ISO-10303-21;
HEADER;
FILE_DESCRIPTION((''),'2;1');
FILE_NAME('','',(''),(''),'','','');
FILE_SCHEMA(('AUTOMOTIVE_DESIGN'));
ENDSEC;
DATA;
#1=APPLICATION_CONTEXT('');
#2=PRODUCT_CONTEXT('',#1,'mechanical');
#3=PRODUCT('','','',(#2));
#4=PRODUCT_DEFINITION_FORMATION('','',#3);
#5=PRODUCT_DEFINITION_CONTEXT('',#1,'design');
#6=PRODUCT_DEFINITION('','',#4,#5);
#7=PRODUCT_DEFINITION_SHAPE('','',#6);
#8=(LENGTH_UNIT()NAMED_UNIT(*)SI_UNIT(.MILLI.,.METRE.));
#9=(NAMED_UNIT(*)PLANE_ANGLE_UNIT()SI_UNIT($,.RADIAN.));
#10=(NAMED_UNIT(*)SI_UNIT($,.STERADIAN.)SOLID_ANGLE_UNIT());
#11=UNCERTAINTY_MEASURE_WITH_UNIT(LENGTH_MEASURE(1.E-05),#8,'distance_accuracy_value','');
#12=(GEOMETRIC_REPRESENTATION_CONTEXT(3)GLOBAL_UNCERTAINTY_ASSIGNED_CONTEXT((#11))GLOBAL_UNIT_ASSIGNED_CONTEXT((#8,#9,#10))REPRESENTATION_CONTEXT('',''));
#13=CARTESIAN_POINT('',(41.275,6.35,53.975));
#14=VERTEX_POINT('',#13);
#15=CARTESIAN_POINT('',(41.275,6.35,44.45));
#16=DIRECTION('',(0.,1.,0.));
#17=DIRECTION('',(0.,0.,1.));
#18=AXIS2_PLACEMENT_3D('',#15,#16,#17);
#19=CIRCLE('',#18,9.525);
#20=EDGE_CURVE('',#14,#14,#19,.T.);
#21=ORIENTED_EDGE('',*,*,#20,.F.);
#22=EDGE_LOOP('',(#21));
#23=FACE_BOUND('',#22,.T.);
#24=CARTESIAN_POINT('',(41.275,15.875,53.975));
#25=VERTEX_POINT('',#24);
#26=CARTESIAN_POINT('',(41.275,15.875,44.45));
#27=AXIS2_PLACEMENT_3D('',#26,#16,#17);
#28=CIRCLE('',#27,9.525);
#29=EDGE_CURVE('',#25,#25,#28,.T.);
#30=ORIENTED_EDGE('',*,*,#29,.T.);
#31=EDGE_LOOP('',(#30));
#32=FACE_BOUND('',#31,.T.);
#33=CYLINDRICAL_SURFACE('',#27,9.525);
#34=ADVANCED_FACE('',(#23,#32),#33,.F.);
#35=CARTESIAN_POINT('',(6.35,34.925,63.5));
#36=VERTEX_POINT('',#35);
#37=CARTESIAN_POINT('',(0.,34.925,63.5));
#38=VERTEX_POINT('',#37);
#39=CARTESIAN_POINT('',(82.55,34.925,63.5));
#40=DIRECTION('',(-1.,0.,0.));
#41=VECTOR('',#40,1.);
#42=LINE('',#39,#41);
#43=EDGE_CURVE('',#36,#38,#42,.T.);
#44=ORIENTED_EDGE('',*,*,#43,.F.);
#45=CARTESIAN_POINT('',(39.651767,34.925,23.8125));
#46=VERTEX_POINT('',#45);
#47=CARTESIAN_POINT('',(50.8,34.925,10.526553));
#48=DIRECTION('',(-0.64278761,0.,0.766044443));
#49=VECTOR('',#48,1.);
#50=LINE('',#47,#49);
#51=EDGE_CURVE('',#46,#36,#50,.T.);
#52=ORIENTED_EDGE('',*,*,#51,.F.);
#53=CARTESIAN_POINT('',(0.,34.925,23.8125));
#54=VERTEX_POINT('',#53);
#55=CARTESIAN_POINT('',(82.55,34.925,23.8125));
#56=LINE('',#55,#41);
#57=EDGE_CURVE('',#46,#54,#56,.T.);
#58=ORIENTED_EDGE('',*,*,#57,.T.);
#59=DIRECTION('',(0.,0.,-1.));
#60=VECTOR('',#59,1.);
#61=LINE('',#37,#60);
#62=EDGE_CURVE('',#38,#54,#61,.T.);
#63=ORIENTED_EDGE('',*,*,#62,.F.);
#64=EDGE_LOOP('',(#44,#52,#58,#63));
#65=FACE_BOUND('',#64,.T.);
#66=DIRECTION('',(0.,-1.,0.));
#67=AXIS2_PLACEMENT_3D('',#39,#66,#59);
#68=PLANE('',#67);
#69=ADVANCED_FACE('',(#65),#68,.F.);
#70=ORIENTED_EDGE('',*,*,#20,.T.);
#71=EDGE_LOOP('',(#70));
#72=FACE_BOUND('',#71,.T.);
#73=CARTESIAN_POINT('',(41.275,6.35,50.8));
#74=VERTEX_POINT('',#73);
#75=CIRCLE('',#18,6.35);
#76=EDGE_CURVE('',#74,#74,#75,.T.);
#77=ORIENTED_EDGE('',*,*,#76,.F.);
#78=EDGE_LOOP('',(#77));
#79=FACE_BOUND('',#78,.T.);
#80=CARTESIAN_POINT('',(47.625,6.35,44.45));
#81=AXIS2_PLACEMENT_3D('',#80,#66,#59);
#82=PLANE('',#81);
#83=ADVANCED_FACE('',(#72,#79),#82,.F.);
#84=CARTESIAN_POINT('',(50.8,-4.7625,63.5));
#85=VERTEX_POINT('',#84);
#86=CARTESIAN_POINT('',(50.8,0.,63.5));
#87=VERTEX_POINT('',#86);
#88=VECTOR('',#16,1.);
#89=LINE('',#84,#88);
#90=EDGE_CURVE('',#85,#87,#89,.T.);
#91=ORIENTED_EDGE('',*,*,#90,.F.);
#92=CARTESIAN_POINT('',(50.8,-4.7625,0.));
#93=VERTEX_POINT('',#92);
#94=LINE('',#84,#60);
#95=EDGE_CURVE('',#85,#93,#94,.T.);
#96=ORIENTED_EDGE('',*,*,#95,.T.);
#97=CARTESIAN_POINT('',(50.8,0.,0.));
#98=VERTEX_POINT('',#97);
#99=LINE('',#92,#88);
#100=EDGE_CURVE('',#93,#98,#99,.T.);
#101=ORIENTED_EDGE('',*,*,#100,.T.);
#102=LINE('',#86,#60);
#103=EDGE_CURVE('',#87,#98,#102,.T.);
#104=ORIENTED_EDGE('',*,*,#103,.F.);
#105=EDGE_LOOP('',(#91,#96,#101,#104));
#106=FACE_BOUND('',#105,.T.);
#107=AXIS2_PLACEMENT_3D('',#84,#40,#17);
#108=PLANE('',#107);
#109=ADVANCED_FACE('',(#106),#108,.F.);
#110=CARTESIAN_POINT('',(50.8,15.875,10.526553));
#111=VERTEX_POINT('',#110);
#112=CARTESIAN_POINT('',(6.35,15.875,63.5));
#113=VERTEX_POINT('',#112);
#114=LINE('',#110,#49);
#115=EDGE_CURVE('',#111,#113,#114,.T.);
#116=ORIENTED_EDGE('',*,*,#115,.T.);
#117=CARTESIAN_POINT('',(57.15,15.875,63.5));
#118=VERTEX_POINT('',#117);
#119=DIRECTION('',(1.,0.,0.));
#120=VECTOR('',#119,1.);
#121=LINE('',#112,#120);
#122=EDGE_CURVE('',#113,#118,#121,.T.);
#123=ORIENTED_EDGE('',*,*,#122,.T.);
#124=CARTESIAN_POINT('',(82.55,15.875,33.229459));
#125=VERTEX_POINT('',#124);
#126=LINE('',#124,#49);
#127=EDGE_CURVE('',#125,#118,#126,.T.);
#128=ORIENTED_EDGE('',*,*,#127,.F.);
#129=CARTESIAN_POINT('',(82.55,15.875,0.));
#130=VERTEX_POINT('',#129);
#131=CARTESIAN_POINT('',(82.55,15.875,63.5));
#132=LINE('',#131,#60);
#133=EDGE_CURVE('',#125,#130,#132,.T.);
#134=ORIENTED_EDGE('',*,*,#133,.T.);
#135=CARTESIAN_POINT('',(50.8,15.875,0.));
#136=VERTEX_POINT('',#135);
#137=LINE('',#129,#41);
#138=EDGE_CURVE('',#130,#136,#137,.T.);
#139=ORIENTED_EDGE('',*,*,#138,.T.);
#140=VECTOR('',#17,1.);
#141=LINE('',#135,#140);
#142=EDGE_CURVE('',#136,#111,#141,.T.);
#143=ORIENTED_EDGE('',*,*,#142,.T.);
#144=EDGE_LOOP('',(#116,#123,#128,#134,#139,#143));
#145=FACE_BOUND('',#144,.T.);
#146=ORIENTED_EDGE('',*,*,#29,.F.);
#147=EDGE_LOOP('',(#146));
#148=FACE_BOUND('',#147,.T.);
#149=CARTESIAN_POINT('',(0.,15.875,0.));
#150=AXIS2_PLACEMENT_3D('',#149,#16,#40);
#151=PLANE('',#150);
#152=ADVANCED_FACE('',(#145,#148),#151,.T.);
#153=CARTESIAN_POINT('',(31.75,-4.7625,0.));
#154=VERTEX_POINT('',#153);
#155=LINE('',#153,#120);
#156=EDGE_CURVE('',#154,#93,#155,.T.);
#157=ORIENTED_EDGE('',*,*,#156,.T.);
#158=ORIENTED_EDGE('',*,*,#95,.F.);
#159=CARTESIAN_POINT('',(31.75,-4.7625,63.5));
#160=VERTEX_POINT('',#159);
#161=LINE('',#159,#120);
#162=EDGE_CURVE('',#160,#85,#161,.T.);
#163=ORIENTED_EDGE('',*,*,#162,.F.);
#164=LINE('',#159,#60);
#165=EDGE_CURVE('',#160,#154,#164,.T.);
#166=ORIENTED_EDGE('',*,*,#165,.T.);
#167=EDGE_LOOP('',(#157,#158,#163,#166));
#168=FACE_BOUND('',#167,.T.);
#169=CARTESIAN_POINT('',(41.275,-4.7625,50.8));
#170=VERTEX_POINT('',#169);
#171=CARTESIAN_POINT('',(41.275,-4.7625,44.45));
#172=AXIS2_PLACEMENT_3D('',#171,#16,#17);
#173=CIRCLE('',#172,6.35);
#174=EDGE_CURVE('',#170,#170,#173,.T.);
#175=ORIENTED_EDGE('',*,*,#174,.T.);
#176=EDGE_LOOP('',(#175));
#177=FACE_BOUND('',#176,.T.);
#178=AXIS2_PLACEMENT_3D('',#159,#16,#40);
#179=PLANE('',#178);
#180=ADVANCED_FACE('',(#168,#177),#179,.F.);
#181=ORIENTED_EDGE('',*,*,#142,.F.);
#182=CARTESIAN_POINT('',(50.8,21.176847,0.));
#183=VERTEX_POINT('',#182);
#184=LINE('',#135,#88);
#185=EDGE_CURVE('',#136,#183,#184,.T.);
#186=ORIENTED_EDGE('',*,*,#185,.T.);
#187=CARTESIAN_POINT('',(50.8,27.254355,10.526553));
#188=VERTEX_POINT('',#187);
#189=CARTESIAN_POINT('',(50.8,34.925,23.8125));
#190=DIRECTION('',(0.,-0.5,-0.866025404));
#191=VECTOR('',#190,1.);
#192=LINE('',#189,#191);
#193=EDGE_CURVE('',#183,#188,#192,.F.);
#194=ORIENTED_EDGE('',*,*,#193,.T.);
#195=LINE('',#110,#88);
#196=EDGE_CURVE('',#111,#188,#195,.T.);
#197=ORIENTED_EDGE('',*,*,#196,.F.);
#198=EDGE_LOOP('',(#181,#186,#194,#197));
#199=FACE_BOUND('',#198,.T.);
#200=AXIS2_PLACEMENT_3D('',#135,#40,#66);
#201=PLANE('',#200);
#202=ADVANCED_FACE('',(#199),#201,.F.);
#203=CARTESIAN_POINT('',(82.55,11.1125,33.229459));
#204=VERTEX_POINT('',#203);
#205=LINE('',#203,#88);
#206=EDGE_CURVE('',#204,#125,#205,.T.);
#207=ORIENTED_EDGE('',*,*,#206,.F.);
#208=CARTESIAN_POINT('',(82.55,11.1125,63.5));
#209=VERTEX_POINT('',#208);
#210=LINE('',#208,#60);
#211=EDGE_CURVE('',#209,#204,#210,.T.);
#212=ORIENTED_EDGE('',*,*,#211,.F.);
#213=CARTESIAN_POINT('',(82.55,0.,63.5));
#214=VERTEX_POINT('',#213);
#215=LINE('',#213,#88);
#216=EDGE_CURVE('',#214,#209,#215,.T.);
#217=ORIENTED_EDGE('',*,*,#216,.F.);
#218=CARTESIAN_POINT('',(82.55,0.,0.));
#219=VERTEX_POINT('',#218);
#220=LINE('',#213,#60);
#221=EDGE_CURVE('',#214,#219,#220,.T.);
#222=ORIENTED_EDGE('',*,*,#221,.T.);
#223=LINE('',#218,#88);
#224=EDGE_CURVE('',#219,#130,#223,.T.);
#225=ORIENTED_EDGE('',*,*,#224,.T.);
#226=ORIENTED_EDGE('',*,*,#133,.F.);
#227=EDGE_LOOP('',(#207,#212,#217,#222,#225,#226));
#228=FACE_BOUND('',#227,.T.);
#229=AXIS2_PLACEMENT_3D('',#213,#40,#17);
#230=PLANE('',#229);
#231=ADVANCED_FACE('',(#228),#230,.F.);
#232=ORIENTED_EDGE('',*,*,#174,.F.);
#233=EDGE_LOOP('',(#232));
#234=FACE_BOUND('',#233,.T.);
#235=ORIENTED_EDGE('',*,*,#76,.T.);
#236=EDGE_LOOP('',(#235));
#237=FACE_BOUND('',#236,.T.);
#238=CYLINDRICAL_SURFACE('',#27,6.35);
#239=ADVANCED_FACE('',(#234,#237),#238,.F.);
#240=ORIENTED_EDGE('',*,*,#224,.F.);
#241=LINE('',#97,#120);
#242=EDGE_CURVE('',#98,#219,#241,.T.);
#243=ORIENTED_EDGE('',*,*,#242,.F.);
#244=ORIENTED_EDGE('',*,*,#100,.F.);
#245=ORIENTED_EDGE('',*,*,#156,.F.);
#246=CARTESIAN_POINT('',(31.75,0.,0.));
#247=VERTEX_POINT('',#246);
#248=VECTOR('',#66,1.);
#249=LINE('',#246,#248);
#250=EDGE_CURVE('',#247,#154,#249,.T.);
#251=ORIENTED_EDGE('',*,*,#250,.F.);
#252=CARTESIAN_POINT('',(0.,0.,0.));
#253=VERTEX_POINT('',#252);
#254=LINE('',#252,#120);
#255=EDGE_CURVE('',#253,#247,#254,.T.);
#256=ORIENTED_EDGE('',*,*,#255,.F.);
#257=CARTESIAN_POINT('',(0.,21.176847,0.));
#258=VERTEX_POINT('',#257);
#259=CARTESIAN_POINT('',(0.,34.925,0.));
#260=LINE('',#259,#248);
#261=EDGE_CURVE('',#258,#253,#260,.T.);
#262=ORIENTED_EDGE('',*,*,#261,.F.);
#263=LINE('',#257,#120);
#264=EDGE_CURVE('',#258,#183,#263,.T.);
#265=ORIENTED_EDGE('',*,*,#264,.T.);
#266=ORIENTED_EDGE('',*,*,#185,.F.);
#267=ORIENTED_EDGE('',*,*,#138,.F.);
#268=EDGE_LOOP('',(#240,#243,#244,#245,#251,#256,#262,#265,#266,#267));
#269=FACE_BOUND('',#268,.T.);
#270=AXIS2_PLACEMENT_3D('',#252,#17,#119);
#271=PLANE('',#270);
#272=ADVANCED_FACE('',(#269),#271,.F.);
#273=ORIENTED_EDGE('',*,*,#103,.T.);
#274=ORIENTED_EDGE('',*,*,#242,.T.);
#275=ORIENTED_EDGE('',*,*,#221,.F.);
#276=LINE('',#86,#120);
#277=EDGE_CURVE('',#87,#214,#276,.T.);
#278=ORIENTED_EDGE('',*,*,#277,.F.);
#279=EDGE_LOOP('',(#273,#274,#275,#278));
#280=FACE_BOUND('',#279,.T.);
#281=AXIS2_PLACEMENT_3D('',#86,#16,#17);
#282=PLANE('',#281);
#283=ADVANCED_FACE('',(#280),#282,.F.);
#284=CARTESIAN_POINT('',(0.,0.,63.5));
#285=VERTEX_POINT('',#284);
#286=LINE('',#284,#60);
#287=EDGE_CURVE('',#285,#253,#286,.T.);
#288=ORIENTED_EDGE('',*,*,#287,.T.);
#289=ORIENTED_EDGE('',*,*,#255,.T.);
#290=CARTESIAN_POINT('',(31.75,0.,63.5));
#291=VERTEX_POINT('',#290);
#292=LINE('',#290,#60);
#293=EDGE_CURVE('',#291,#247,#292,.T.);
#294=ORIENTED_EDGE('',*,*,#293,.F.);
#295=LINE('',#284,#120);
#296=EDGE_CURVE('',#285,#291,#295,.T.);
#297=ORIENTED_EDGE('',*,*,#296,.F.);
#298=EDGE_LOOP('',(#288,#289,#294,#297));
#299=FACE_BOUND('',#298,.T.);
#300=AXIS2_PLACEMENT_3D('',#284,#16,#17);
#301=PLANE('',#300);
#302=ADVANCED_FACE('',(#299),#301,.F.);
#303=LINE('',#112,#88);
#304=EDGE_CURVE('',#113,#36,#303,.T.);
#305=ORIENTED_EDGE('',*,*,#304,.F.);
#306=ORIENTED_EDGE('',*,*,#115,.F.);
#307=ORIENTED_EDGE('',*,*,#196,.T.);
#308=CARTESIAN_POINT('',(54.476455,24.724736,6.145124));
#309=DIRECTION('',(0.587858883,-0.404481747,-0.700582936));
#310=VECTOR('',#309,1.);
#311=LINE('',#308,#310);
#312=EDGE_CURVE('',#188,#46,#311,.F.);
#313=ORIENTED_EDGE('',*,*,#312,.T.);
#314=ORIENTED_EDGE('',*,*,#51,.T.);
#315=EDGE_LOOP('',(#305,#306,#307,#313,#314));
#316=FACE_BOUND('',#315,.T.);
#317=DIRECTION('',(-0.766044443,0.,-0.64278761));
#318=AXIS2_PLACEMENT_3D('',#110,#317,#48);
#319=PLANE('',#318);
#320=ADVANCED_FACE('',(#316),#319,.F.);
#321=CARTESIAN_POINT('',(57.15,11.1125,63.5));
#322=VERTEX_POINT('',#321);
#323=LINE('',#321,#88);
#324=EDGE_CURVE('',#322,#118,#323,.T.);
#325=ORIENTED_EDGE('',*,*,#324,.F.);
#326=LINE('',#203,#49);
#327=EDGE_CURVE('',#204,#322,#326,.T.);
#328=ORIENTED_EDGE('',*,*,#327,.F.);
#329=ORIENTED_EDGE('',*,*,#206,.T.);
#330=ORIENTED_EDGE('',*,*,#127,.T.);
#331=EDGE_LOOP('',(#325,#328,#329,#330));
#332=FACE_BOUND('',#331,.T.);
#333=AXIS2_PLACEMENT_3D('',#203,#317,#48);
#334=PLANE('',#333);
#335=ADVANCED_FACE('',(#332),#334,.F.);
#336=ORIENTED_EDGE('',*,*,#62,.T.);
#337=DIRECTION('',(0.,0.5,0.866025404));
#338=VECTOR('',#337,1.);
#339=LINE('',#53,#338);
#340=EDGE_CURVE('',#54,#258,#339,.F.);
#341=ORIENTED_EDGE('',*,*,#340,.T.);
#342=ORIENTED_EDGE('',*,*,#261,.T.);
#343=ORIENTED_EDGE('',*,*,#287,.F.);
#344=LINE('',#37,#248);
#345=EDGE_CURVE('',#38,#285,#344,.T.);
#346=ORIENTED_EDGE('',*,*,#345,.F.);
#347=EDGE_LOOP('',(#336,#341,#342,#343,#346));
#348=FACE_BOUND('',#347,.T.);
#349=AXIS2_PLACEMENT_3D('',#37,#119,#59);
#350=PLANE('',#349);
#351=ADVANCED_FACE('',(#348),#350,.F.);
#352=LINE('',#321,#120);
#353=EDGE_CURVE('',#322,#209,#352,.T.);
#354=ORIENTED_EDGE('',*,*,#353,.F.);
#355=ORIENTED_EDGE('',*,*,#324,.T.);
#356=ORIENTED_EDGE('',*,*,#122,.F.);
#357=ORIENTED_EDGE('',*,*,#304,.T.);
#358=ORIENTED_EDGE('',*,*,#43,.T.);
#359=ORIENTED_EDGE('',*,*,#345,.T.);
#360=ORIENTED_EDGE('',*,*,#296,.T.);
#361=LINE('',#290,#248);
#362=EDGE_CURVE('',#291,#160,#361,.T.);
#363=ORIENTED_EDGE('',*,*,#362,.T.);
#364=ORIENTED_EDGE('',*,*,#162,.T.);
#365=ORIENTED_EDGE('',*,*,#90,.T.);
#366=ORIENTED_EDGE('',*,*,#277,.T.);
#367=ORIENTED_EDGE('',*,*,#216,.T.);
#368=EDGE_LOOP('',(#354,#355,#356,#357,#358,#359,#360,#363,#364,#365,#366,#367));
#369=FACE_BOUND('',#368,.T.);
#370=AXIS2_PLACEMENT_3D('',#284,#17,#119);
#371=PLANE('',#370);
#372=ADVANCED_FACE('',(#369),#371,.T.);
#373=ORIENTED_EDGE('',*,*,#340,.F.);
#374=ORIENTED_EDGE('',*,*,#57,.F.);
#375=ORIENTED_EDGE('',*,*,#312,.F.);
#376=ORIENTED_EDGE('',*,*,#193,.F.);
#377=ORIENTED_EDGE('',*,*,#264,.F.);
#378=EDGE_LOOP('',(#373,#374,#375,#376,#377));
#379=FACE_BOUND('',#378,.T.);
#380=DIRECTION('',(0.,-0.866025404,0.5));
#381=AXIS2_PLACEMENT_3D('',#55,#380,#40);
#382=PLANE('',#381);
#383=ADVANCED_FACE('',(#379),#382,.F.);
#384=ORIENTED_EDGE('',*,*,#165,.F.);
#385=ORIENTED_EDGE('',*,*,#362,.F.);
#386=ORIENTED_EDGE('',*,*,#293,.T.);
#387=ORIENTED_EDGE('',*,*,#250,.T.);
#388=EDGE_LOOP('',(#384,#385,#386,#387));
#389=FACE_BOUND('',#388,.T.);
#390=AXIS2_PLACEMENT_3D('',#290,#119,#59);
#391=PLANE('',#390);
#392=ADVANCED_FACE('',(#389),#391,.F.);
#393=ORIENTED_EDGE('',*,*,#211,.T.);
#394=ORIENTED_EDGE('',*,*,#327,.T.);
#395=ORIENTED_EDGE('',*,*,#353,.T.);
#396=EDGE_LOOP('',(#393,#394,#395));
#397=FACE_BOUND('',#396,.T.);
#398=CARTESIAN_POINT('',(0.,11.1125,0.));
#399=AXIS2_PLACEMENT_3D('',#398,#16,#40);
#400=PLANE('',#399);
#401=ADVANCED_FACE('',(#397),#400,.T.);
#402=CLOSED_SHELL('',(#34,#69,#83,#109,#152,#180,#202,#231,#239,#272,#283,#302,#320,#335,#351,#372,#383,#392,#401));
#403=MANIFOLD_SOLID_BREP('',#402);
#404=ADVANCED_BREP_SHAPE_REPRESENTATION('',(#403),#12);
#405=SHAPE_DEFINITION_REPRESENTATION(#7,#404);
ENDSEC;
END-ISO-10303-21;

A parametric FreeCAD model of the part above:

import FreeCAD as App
import Part
import Sketcher
Q = App.Units.Quantity


def edges_at(feature, points):
    """Names of the edges that pass closest to the given points."""
    edges = feature.Shape.Edges
    near = lambda p: min(range(len(edges)), key=lambda i: edges[i].distToShape(Part.Vertex(*p))[0])
    return sorted({f"Edge{near(p) + 1}" for p in points})

doc = App.newDocument("Part")
body = doc.addObject("PartDesign::Body", "Body")

# Sketch on XY plane
sketch1 = doc.addObject("Sketcher::SketchObject", "Sketch")
body.addObject(sketch1)
sketch1.AttachmentSupport = (doc.XY_Plane, [""])
sketch1.MapMode = "FlatFace"
sketch1.addGeometry([
    Part.LineSegment(App.Vector(0, 0, 0), App.Vector(31.8, 0, 0)),  # 0
    Part.LineSegment(App.Vector(31.8, 0, 0), App.Vector(31.8, -4.8, 0)),  # 1
    Part.LineSegment(App.Vector(31.8, -4.8, 0), App.Vector(50.8, -4.8, 0)),  # 2
    Part.LineSegment(App.Vector(50.8, -4.8, 0), App.Vector(50.8, 0, 0)),  # 3
    Part.LineSegment(App.Vector(50.8, 0, 0), App.Vector(82.5, 0, 0)),  # 4
    Part.LineSegment(App.Vector(82.5, 0, 0), App.Vector(82.5, 34.9, 0)),  # 5
    Part.LineSegment(App.Vector(82.5, 34.9, 0), App.Vector(0, 34.9, 0)),  # 6
    Part.LineSegment(App.Vector(0, 34.9, 0), App.Vector(0, 0, 0)),  # 7
], False)
sketch1.addConstraint([
    Sketcher.Constraint("Coincident", 0, 2, 1, 1),
    Sketcher.Constraint("Coincident", 1, 2, 2, 1),
    Sketcher.Constraint("Coincident", 2, 2, 3, 1),
    Sketcher.Constraint("Coincident", 3, 2, 4, 1),
    Sketcher.Constraint("Coincident", 4, 2, 5, 1),
    Sketcher.Constraint("Coincident", 5, 2, 6, 1),
    Sketcher.Constraint("Coincident", 6, 2, 7, 1),
    Sketcher.Constraint("Coincident", 7, 2, 0, 1),
    Sketcher.Constraint("Horizontal", 0),
    Sketcher.Constraint("Vertical", 1),
    Sketcher.Constraint("Horizontal", 2),
    Sketcher.Constraint("Vertical", 3),
    Sketcher.Constraint("Horizontal", 4),
    Sketcher.Constraint("Vertical", 5),
    Sketcher.Constraint("Horizontal", 6),
    Sketcher.Constraint("Vertical", 7),
    Sketcher.Constraint("Coincident", 7, 2, -1, 1),
    Sketcher.Constraint("PointOnObject", 3, 2, -1),
    Sketcher.Constraint("Equal", 0, 4),
    Sketcher.Constraint("DistanceX", -1, 1, 2, 2, Q("2 in")),
    Sketcher.Constraint("DistanceX", 0, 1, 0, 2, Q("1.25 in")),
    Sketcher.Constraint("DistanceY", 1, 2, 1, 1, Q("0.1875 in")),
    Sketcher.Constraint("DistanceY", 5, 1, 5, 2, Q("1.375 in")),
])
pad1 = doc.addObject("PartDesign::Pad", "Pad")
body.addObject(pad1)
pad1.Profile = sketch1
pad1.Length = Q("2.5 in")
doc.recompute()

chamfer = doc.addObject("PartDesign::Chamfer", "Chamfer")
body.addObject(chamfer)
chamfer.Base = (pad1, edges_at(pad1, [(41.275, 34.925, 0)]))
chamfer.ChamferType = "Two distances"
chamfer.Size = Q("0.9375 in")
chamfer.Size2 = 13.748153

# Sketch on XZ plane
sketch2 = doc.addObject("Sketcher::SketchObject", "Sketch001")
body.addObject(sketch2)
sketch2.AttachmentSupport = (doc.XZ_Plane, [""])
sketch2.MapMode = "FlatFace"
sketch2.AttachmentOffset = App.Placement(App.Vector(0, 0, -1.375 * 25.4), App.Rotation())
sketch2.addGeometry([
    Part.LineSegment(App.Vector(51, 0, 0), App.Vector(51, 11, 0)),  # 0
    Part.LineSegment(App.Vector(51, 11, 0), App.Vector(6, 64, 0)),  # 1
    Part.LineSegment(App.Vector(6, 64, 0), App.Vector(83, 64, 0)),  # 2
    Part.LineSegment(App.Vector(83, 64, 0), App.Vector(83, 0, 0)),  # 3
    Part.LineSegment(App.Vector(83, 0, 0), App.Vector(51, 0, 0)),  # 4
], False)
sketch2.addConstraint([
    Sketcher.Constraint("Coincident", 0, 2, 1, 1),
    Sketcher.Constraint("Coincident", 1, 2, 2, 1),
    Sketcher.Constraint("Coincident", 2, 2, 3, 1),
    Sketcher.Constraint("Coincident", 3, 2, 4, 1),
    Sketcher.Constraint("Coincident", 4, 2, 0, 1),
    Sketcher.Constraint("Vertical", 0),
    Sketcher.Constraint("Horizontal", 2),
    Sketcher.Constraint("Vertical", 3),
    Sketcher.Constraint("Horizontal", 4),
    Sketcher.Constraint("PointOnObject", 3, 2, -1),
    Sketcher.Constraint("DistanceX", 2, 1, 2, 2, Q("3 in")),
    Sketcher.Constraint("DistanceY", 3, 2, 3, 1, Q("2.5 in")),
    Sketcher.Constraint("DistanceX", -1, 1, 0, 2, Q("2 in")),
    Sketcher.Constraint("Angle", 1, Q("130 deg")),
    Sketcher.Constraint("DistanceX", 4, 2, 4, 1, Q("1.25 in")),
])
pocket1 = doc.addObject("PartDesign::Pocket", "Pocket")
body.addObject(pocket1)
pocket1.Profile = sketch2
pocket1.Length = Q("0.75 in")
pocket1.Reversed = True

# Sketch on XZ plane
sketch3 = doc.addObject("Sketcher::SketchObject", "Sketch002")
body.addObject(sketch3)
sketch3.AttachmentSupport = (doc.XZ_Plane, [""])
sketch3.MapMode = "FlatFace"
sketch3.AttachmentOffset = App.Placement(App.Vector(0, 0, -0.625 * 25.4), App.Rotation())
sketch3.addGeometry(Part.Circle(App.Vector(41, 44, 0), App.Vector(0, 0, 1), 6), False)
sketch3.addConstraint([
    Sketcher.Constraint("Diameter", 0, Q("0.5 in")),
    Sketcher.Constraint("DistanceY", -1, 1, 0, 3, Q("1.75 in")),
    Sketcher.Constraint("DistanceX", -1, 1, 0, 3, Q("1.625 in")),
])
doc.recompute()
hole = doc.addObject("PartDesign::Hole", "Hole")
body.addObject(hole)
hole.Profile = sketch3
hole.ThreadType = "None"
hole.Diameter = Q("0.5 in")
hole.DepthType = "ThroughAll"
hole.HoleCutType = "Counterbore"
hole.HoleCutDiameter = Q("0.75 in")
hole.HoleCutDepth = Q("0.375 in")
hole.Reversed = True

# Sketch on XZ plane
sketch4 = doc.addObject("Sketcher::SketchObject", "Sketch003")
body.addObject(sketch4)
sketch4.AttachmentSupport = (doc.XZ_Plane, [""])
sketch4.MapMode = "FlatFace"
sketch4.AttachmentOffset = App.Placement(App.Vector(0, 0, -0.625 * 25.4), App.Rotation())
sketch4.addGeometry([
    Part.LineSegment(App.Vector(57, 64, 0), App.Vector(83, 64, 0)),
    Part.LineSegment(App.Vector(83, 64, 0), App.Vector(83, 33, 0)),
    Part.LineSegment(App.Vector(83, 33, 0), App.Vector(57, 64, 0)),
], False)
sketch4.addConstraint([
    Sketcher.Constraint("Coincident", 0, 2, 1, 1),
    Sketcher.Constraint("Coincident", 1, 2, 2, 1),
    Sketcher.Constraint("Coincident", 2, 2, 0, 1),
    Sketcher.Constraint("Horizontal", 0),
    Sketcher.Constraint("Vertical", 1),
    Sketcher.Constraint("DistanceX", 0, 1, 0, 2, Q("1 in")),
    Sketcher.Constraint("Angle", 2, Q("130 deg")),
    Sketcher.Constraint("DistanceY", -1, 1, 0, 2, Q("2.5 in")),
    Sketcher.Constraint("DistanceX", -1, 1, 0, 2, Q("3.25 in")),
])
pocket2 = doc.addObject("PartDesign::Pocket", "Pocket001")
body.addObject(pocket2)
pocket2.Profile = sketch4
pocket2.Length = Q("0.1875 in")
pocket2.Reversed = True

doc.recompute()
